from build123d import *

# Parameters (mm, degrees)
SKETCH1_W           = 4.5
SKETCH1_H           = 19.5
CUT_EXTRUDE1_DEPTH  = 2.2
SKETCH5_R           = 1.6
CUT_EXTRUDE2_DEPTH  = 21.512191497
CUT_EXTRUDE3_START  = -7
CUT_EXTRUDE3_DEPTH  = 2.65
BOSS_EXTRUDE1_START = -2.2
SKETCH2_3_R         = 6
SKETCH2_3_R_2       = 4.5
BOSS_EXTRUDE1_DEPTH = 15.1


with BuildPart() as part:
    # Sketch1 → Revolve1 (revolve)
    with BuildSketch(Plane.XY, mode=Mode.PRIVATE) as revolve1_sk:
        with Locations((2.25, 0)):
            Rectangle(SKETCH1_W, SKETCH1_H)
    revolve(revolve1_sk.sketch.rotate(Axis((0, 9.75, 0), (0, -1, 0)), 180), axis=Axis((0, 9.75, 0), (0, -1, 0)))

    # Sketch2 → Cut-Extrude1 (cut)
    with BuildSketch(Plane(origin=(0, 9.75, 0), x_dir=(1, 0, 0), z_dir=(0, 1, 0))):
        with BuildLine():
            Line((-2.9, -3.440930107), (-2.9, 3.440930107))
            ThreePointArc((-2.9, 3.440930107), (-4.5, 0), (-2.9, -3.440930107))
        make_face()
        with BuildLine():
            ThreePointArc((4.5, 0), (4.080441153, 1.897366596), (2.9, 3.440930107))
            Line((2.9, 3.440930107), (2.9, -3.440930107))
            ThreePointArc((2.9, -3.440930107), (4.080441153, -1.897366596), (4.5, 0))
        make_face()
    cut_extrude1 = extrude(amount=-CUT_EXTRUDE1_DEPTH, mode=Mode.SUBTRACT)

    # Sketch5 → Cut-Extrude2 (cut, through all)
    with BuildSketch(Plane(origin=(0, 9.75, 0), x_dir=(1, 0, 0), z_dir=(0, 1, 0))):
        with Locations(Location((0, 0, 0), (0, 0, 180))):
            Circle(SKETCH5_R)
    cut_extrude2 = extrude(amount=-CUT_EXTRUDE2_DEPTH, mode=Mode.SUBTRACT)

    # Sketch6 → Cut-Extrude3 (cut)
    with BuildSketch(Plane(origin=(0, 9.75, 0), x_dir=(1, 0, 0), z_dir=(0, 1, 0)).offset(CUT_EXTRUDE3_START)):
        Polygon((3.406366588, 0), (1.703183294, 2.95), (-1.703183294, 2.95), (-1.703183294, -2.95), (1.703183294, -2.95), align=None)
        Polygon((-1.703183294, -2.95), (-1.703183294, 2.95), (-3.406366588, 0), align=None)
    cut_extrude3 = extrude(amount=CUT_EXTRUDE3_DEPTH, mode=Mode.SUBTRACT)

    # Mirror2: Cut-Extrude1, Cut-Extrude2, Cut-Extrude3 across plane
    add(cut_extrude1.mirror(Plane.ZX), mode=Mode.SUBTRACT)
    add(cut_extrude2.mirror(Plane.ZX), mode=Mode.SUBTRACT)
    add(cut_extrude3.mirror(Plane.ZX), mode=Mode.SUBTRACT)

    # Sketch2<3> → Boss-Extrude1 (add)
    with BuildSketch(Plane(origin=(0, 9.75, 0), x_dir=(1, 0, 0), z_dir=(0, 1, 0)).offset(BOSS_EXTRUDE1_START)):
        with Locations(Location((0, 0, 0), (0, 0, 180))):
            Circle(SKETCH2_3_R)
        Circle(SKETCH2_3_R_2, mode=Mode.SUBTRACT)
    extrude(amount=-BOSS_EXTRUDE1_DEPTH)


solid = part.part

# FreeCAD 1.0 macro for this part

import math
import FreeCAD as App
import Part
import Sketcher
from FreeCAD import Vector
Q = App.Units.Quantity


def add_polygon(sketch, points):
    """Adds a closed chain of lines whose ends are joined by coincident constraints."""
    first, n = sketch.GeometryCount, len(points)
    for a, b in zip(points, points[1:] + points[:1]):
        sketch.addGeometry(Part.LineSegment(App.Vector(*a, 0), App.Vector(*b, 0)), False)
    for i in range(n):
        sketch.addConstraint(Sketcher.Constraint("Coincident", first + i, 2, first + (i + 1) % n, 1))

doc = App.newDocument("Part")
body = doc.addObject("PartDesign::Body", "Body")

# Sketch on XY plane
sketch1 = doc.addObject("Sketcher::SketchObject", "Sketch")
body.addObject(sketch1)
sketch1.AttachmentSupport = (doc.XY_Plane, [""])
sketch1.MapMode = "FlatFace"
add_polygon(sketch1, [(0, 9.8), (0, -9.8), (4.5, -9.8), (4.5, 9.8)])  # lines 0-3
sketch1.addConstraint([
    Sketcher.Constraint("Vertical", 0),
    Sketcher.Constraint("Horizontal", 1),
    Sketcher.Constraint("Vertical", 2),
    Sketcher.Constraint("Horizontal", 3),
    Sketcher.Constraint("Symmetric", 0, 2, 3, 2, -1, 1),
    Sketcher.Constraint("DistanceX", 1, 1, 1, 2, 4.5),
    Sketcher.Constraint("DistanceY", 0, 2, 0, 1, 19.5),
])
revolution = doc.addObject("PartDesign::Revolution", "Revolution")
body.addObject(revolution)
revolution.Profile = sketch1
revolution.ReferenceAxis = (sketch1, ["V_Axis"])
revolution.Angle = 360

# Sketch on XZ plane
sketch2 = doc.addObject("Sketcher::SketchObject", "Sketch001")
body.addObject(sketch2)
sketch2.AttachmentSupport = (doc.XZ_Plane, [""])
sketch2.MapMode = "FlatFace"
sketch2.AttachmentOffset = App.Placement(Vector(0, 0, -9.75), App.Rotation())
sketch2.addGeometry([
    Part.LineSegment(Vector(-2.9, 3.4, 0), Vector(-2.9, -3.4, 0)),  # 0
    Part.ArcOfCircle(Part.Circle(Vector(0, 0, 0), Vector(0, 0, 1), 4.5), math.radians(130), math.radians(230)),  # 1
    Part.ArcOfCircle(Part.Circle(Vector(0, 0, 0), Vector(0, 0, 1), 4.5), math.radians(-50), math.radians(0)),  # 2
    Part.LineSegment(Vector(2.9, -3.4, 0), Vector(2.9, 3.4, 0)),  # 3
    Part.ArcOfCircle(Part.Circle(Vector(0, 0, 0), Vector(0, 0, 1), 4.5), math.radians(0), math.radians(50)),  # 4
], False)
sketch2.addConstraint([
    Sketcher.Constraint("Coincident", 0, 1, 1, 1),
    Sketcher.Constraint("Coincident", 1, 2, 0, 2),
    Sketcher.Constraint("Coincident", 2, 1, 3, 1),
    Sketcher.Constraint("Coincident", 3, 2, 4, 2),
    Sketcher.Constraint("Tangent", 4, 1, 2, 2),
    Sketcher.Constraint("Vertical", 0),
    Sketcher.Constraint("Vertical", 3),
    Sketcher.Constraint("Coincident", 1, 3, -1, 1),
    Sketcher.Constraint("Coincident", 2, 3, -1, 1),
    Sketcher.Constraint("Equal", 1, 2),
    Sketcher.Constraint("Equal", 2, 4),
    Sketcher.Constraint("PointOnObject", 4, 1, -1),
    Sketcher.Constraint("Horizontal", 1, 2, 2, 1),
    Sketcher.Constraint("Radius", 1, 4.5),
    Sketcher.Constraint("DistanceX", 0, 1, -1, 1, 2.9),
])
pocket1 = doc.addObject("PartDesign::Pocket", "Pocket")
body.addObject(pocket1)
pocket1.Profile = sketch2
pocket1.Length = 2.2
pocket1.Reversed = True

# Sketch on XZ plane
sketch3 = doc.addObject("Sketcher::SketchObject", "Sketch002")
body.addObject(sketch3)
sketch3.AttachmentSupport = (doc.XZ_Plane, [""])
sketch3.MapMode = "FlatFace"
sketch3.AttachmentOffset = App.Placement(Vector(0, 0, -9.75), App.Rotation())
sketch3.addGeometry(Part.Circle(Vector(0, 0, 0), Vector(0, 0, 1), 1.6), False)
sketch3.addConstraint([
    Sketcher.Constraint("Coincident", 0, 3, -1, 1),
    Sketcher.Constraint("Diameter", 0, 3.2),
])
pocket2 = doc.addObject("PartDesign::Pocket", "Pocket001")
body.addObject(pocket2)
pocket2.Profile = sketch3
pocket2.Type = "ThroughAll"
pocket2.Reversed = True

# Sketch on XZ plane
sketch4 = doc.addObject("Sketcher::SketchObject", "Sketch003")
body.addObject(sketch4)
sketch4.AttachmentSupport = (doc.XZ_Plane, [""])
sketch4.MapMode = "FlatFace"
sketch4.AttachmentOffset = App.Placement(Vector(0, 0, -2.75), App.Rotation())
add_polygon(sketch4, [(3.4, 0), (1.7, -3), (-1.7, -3), (-3.4, 0), (-1.7, 3), (1.7, 3)])  # lines 0-5
sketch4.addConstraint([
    Sketcher.Constraint("Horizontal", 1),
    Sketcher.Constraint("Horizontal", 4),
    Sketcher.Constraint("Symmetric", 0, 2, 3, 2, -1, 1),
    Sketcher.Constraint("Symmetric", 2, 2, 5, 2, -1, 1),
    Sketcher.Constraint("PointOnObject", 2, 2, -1),
    Sketcher.Constraint("Parallel", 2, 5),
    Sketcher.Constraint("Vertical", 1, 2, 3, 2),
    Sketcher.Constraint("Angle", 0, Q("-120 deg")),
    Sketcher.Constraint("DistanceY", 1, 2, 3, 2, 5.9),
    Sketcher.Constraint("DistanceX", 1, 2, 1, 1, 3.406367),
])
pocket3 = doc.addObject("PartDesign::Pocket", "Pocket002")
body.addObject(pocket3)
pocket3.Profile = sketch4
pocket3.Length = 2.65
doc.recompute()

mirrored = doc.addObject("PartDesign::Mirrored", "Mirrored")
body.addObject(mirrored)
mirrored.Originals = [pocket1, pocket2, pocket3]
mirrored.MirrorPlane = (doc.XZ_Plane, [""])
body.Tip = mirrored

# Sketch on XZ plane
sketch5 = doc.addObject("Sketcher::SketchObject", "Sketch004")
body.addObject(sketch5)
sketch5.AttachmentSupport = (doc.XZ_Plane, [""])
sketch5.MapMode = "FlatFace"
sketch5.AttachmentOffset = App.Placement(Vector(0, 0, -7.55), App.Rotation())
sketch5.addGeometry([
    Part.Circle(Vector(0, 0, 0), Vector(0, 0, 1), 6),
    Part.Circle(Vector(0, 0, 0), Vector(0, 0, 1), 4.5),
], False)
sketch5.addConstraint([
    Sketcher.Constraint("Coincident", 0, 3, -1, 1),
    Sketcher.Constraint("Coincident", 1, 3, -1, 1),
    Sketcher.Constraint("Diameter", 0, 12.0),
    Sketcher.Constraint("Diameter", 1, 9.0),
])
pad1 = doc.addObject("PartDesign::Pad", "Pad")
body.addObject(pad1)
pad1.Profile = sketch5
pad1.Length = 15.1

doc.recompute()
